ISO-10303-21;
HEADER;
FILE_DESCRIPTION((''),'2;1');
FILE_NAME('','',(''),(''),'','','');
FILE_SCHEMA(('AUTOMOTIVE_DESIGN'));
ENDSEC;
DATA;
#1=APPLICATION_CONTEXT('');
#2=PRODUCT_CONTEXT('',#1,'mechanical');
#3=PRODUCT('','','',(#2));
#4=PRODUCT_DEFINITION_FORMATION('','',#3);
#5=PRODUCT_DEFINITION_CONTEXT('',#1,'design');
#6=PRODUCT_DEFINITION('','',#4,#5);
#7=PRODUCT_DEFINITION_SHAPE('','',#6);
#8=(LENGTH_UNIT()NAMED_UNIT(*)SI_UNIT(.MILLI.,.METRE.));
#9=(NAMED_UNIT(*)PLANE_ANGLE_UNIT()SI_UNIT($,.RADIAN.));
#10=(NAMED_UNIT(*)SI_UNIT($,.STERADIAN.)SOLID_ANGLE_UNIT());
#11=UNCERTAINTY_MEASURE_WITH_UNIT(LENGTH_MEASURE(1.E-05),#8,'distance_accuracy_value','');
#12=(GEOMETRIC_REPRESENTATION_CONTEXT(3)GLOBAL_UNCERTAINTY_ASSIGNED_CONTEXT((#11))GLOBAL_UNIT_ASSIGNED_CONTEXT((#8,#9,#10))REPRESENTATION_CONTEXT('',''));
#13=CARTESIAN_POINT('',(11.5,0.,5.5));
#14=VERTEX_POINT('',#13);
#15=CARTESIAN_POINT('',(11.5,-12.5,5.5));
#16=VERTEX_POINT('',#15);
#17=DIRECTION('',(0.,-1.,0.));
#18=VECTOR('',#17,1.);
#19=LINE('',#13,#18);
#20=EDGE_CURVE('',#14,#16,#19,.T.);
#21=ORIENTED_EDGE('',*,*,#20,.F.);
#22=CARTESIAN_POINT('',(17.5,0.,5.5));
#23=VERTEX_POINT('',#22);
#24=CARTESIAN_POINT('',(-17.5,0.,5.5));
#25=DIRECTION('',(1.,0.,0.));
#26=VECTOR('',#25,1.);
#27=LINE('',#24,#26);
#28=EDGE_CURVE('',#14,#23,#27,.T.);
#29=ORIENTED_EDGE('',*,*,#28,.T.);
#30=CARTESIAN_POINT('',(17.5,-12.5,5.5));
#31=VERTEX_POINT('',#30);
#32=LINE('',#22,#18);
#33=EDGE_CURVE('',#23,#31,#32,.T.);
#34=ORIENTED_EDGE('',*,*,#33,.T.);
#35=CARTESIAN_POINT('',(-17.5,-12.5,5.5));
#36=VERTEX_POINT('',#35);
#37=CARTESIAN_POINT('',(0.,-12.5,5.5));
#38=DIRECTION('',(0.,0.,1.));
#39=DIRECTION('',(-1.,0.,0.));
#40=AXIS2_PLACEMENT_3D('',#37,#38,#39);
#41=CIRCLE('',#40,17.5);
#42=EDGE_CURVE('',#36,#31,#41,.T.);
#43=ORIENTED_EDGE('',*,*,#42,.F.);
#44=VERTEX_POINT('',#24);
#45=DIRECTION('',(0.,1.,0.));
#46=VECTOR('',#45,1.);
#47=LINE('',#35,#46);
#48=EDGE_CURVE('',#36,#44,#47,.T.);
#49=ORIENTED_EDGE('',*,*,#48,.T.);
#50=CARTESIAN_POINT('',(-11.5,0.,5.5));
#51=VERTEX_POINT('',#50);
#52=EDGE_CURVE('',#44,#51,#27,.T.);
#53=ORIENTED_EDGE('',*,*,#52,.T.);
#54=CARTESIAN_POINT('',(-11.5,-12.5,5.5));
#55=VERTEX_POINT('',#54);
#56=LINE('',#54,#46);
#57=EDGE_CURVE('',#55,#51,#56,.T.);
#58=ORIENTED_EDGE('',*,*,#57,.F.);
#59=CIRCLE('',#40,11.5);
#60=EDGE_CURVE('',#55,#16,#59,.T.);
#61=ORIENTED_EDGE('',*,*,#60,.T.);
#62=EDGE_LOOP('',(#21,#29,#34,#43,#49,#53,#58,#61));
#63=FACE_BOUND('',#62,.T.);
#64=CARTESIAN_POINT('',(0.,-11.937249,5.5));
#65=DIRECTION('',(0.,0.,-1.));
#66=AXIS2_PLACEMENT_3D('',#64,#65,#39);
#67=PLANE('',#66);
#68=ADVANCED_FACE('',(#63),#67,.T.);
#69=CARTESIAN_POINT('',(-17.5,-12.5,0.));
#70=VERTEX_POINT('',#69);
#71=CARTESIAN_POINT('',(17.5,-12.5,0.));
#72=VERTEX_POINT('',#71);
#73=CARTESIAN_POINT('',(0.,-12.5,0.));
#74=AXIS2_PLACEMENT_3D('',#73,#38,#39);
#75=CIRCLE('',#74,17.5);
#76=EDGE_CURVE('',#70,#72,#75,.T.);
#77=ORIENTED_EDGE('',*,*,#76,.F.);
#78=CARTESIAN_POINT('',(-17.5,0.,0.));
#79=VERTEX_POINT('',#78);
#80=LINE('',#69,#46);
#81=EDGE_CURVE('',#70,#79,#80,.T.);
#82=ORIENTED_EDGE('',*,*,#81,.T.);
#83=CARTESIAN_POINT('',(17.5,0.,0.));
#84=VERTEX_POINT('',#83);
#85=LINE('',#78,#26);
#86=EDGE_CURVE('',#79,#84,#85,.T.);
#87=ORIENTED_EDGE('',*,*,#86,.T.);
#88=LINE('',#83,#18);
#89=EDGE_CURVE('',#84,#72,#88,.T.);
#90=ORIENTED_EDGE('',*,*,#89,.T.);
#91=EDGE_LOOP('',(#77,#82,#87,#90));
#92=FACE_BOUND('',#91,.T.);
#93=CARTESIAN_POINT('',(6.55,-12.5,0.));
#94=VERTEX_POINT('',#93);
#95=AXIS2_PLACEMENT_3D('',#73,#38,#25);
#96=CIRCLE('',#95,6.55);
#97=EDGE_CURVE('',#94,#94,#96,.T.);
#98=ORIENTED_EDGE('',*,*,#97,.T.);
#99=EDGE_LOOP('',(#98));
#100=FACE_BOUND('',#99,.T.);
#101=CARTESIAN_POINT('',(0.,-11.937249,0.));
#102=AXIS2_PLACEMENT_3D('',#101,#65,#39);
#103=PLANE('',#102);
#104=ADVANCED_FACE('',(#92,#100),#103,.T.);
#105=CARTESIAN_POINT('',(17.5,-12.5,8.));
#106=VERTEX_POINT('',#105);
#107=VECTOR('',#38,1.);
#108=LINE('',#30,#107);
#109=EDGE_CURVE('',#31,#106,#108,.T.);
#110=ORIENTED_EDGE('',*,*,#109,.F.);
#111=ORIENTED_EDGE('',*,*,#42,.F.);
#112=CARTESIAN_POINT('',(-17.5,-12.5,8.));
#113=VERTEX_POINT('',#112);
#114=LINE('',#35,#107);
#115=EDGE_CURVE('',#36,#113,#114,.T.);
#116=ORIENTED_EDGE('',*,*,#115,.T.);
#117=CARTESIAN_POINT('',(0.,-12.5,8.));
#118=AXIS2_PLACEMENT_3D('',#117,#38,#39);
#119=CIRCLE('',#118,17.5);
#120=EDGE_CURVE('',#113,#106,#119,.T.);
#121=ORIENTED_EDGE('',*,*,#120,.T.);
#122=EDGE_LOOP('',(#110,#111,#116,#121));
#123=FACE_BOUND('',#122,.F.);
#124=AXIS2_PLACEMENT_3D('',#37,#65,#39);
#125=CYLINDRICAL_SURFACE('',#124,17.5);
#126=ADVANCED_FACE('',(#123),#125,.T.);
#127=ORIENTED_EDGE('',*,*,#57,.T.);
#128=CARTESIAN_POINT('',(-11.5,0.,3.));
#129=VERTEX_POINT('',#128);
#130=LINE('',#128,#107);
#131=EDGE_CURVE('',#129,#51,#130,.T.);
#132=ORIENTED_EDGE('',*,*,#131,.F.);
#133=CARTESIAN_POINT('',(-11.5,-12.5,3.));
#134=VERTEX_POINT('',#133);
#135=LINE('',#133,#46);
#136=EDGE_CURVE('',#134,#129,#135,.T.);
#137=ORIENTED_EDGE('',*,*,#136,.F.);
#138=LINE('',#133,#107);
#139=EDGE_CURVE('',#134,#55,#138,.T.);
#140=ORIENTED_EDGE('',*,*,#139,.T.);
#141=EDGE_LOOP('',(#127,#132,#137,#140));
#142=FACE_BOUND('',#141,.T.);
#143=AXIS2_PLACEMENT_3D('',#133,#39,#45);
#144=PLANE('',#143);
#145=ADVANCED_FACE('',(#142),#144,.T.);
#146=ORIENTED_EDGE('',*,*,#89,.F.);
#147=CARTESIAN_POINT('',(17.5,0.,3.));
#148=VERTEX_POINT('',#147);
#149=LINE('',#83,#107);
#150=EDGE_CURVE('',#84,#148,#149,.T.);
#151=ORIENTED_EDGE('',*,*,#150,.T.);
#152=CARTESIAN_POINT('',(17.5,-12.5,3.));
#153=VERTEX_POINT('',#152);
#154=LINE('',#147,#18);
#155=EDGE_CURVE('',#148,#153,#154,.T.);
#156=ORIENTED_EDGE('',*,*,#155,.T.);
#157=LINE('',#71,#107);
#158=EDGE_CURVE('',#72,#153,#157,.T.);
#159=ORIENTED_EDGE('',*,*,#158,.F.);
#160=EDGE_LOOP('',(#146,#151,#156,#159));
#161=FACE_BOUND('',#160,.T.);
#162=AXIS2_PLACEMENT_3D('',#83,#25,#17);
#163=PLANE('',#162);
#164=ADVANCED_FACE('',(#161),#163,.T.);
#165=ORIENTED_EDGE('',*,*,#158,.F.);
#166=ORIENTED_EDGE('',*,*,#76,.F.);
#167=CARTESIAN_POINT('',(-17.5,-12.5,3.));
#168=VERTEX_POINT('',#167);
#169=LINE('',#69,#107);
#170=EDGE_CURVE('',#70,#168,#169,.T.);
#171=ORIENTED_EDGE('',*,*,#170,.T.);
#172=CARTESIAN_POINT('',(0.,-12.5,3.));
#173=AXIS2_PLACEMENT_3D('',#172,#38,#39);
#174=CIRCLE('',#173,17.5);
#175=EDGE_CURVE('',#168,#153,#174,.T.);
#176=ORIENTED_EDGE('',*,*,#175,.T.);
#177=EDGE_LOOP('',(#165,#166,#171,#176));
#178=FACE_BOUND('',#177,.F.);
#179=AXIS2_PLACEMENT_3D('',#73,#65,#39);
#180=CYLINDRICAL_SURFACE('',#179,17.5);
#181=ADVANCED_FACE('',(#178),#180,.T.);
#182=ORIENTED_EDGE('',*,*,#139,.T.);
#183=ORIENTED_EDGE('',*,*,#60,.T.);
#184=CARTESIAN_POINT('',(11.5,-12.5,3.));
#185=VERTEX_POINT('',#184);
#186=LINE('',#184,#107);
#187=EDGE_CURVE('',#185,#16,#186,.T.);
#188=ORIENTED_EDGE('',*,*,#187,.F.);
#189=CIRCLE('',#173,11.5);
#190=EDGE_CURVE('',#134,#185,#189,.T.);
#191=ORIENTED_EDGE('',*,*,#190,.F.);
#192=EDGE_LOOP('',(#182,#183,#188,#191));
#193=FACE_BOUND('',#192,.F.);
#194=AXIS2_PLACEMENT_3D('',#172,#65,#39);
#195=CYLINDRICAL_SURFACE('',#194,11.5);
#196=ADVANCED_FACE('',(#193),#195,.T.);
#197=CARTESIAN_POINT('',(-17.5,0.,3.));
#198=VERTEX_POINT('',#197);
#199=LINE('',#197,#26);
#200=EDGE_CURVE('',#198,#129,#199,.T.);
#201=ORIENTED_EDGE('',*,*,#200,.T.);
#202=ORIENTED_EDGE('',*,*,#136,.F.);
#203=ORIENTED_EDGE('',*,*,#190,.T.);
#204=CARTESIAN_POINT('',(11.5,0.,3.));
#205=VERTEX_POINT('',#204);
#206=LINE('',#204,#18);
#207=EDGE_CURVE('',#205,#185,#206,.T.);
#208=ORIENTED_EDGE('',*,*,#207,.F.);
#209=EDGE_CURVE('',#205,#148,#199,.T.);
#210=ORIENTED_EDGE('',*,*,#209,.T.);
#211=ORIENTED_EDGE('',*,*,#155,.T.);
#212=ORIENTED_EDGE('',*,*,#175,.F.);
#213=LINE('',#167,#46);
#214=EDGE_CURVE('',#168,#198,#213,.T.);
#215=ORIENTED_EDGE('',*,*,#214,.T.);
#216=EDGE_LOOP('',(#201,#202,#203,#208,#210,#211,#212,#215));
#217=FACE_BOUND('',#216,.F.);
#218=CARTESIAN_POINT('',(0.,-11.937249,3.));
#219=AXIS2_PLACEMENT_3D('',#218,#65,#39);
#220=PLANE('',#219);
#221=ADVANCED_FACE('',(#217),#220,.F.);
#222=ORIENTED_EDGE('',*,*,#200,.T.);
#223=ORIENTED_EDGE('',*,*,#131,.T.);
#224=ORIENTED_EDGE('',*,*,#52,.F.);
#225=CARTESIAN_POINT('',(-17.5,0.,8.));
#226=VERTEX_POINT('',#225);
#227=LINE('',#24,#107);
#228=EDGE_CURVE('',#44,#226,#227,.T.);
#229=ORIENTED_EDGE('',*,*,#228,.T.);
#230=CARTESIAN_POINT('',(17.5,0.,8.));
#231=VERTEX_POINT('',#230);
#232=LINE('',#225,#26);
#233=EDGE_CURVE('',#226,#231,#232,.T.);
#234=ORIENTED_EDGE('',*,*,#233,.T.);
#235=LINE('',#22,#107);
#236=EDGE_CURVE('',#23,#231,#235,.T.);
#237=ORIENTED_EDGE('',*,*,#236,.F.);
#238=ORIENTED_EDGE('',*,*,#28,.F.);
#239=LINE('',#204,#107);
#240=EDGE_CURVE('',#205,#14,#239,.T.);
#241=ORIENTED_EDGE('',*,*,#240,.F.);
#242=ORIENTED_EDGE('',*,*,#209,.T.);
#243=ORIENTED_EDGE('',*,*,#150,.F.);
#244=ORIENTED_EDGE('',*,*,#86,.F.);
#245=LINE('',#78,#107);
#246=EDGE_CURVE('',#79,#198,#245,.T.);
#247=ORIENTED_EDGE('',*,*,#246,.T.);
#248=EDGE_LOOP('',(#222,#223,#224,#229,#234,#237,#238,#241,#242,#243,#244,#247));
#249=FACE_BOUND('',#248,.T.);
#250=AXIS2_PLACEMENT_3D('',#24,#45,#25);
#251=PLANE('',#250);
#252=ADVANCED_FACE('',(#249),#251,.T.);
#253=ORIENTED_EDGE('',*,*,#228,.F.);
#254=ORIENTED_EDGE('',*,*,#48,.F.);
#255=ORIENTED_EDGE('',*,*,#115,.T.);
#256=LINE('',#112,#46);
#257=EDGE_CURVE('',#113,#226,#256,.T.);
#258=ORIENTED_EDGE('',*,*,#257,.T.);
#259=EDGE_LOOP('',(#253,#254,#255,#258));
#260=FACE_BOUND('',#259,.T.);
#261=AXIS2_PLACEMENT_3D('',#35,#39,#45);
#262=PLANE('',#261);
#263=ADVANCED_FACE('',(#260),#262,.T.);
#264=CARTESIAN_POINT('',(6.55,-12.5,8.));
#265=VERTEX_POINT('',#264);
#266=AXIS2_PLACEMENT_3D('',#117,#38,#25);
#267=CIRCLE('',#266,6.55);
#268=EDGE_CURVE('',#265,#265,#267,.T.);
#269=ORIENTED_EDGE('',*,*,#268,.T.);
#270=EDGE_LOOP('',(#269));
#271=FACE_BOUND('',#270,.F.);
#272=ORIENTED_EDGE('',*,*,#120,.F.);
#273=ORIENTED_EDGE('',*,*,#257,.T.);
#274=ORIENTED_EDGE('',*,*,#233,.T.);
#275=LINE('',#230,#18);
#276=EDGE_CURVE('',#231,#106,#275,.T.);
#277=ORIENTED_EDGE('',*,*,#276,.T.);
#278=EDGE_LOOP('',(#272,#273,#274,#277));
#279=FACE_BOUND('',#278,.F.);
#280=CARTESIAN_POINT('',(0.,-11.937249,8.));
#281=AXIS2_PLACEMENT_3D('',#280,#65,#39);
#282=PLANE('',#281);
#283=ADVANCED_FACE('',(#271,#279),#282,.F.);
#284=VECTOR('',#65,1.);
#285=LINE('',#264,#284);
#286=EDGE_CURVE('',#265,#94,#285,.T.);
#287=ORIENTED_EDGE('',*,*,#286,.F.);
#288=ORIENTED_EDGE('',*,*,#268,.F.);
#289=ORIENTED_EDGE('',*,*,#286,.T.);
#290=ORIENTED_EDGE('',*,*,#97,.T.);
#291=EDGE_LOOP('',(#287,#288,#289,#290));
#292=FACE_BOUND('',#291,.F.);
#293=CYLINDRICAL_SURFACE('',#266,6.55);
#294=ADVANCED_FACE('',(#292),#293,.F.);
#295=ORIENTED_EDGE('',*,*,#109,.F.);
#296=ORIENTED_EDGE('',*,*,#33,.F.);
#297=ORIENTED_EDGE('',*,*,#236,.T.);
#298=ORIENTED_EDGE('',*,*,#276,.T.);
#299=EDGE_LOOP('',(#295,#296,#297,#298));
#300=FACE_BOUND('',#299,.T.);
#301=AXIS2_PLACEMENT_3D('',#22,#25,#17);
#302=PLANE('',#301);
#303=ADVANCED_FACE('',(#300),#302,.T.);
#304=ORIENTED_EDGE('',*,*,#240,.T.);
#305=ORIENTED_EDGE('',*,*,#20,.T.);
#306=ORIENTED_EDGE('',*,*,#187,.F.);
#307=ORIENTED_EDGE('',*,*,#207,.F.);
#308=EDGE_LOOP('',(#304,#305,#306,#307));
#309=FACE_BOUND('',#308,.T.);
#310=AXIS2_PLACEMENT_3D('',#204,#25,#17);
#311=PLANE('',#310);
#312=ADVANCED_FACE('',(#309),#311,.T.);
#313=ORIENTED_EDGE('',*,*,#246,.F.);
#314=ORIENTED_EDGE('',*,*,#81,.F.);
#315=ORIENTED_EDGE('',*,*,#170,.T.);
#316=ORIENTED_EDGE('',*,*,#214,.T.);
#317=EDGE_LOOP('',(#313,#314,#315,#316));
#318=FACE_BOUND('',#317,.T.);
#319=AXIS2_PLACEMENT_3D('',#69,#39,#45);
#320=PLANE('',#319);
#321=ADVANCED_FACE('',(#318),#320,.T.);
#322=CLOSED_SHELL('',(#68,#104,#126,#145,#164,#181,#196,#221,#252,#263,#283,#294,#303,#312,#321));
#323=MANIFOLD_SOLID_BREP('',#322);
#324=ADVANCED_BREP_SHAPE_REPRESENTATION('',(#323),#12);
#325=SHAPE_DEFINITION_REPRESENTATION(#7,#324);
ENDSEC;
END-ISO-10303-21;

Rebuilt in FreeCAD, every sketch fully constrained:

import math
import FreeCAD as App
import Part
import Sketcher
Q = App.Units.Quantity

doc = App.newDocument("Part")
params = doc.addObject("Spreadsheet::Sheet", "Params")
for row, (alias, value) in enumerate([
    ("sketch1_radius", "17.5 mm"),
    ("sketch1_height", "12.5 mm"),
    ("pad1_length", "3 mm"),
    ("sketch2_radius", "11.5 mm"),
    ("sketch2_height", "12.5 mm"),
    ("pad2_length", "2.5 mm"),
    ("sketch3_radius", "17.5 mm"),
    ("sketch3_height", "12.5 mm"),
    ("pad3_length", "2.5 mm"),
    ("sketch4_diameter", "13.1 mm"),
], start=1):
    params.set(f"A{row}", alias)
    params.set(f"B{row}", "=" + value)
    params.setAlias(f"B{row}", alias)

body = doc.addObject("PartDesign::Body", "Body")

# Sketch on XY plane
sketch1 = body.newObject("Sketcher::SketchObject", "Sketch")
sketch1.AttachmentSupport = (doc.getObject("XY_Plane"), [""])
sketch1.MapMode = "FlatFace"
sketch1.addGeometry([
    Part.LineSegment(App.Vector(18, 0, 0), App.Vector(-18, 0, 0)),
    Part.LineSegment(App.Vector(-18, 0, 0), App.Vector(-18, -12, 0)),
    Part.ArcOfCircle(Part.Circle(App.Vector(0, -12, 0), App.Vector(0, 0, 1), 18), math.radians(180), math.radians(360)),
    Part.LineSegment(App.Vector(18, -12, 0), App.Vector(18, 0, 0)),
], False)
sketch1.addConstraint([
    Sketcher.Constraint("Coincident", 0, 2, 1, 1),
    Sketcher.Constraint("Tangent", 1, 2, 2, 1),
    Sketcher.Constraint("Tangent", 2, 2, 3, 1),
    Sketcher.Constraint("Coincident", 3, 2, 0, 1),
    Sketcher.Constraint("Horizontal", 0),
    Sketcher.Constraint("Vertical", 1),
    Sketcher.Constraint("Vertical", 3),
    Sketcher.Constraint("Symmetric", 0, 2, 3, 2, -1, 1),
    Sketcher.Constraint("Radius", 2, Q("17.5 mm")),
    Sketcher.Constraint("DistanceY", 1, 2, 1, 1, Q("12.5 mm")),
])
sketch1.setExpression("Constraints[8]", "Params.sketch1_radius")
sketch1.setExpression("Constraints[9]", "Params.sketch1_height")
pad1 = body.newObject("PartDesign::Pad", "Pad")
pad1.Profile = sketch1
pad1.setExpression("Length", "Params.pad1_length")

# Sketch on XY plane
sketch2 = body.newObject("Sketcher::SketchObject", "Sketch001")
sketch2.AttachmentSupport = (doc.getObject("XY_Plane"), [""])
sketch2.MapMode = "FlatFace"
sketch2.AttachmentOffset = App.Placement(App.Vector(0, 0, 3), App.Rotation())
sketch2.addGeometry([
    Part.LineSegment(App.Vector(12, -12, 0), App.Vector(12, 0, 0)),
    Part.LineSegment(App.Vector(12, 0, 0), App.Vector(-12, 0, 0)),
    Part.LineSegment(App.Vector(-12, 0, 0), App.Vector(-12, -12, 0)),
    Part.ArcOfCircle(Part.Circle(App.Vector(0, -12, 0), App.Vector(0, 0, 1), 12), math.radians(180), math.radians(360)),
], False)
sketch2.addConstraint([
    Sketcher.Constraint("Coincident", 0, 2, 1, 1),
    Sketcher.Constraint("Coincident", 1, 2, 2, 1),
    Sketcher.Constraint("Tangent", 2, 2, 3, 1),
    Sketcher.Constraint("Tangent", 3, 2, 0, 1),
    Sketcher.Constraint("Vertical", 0),
    Sketcher.Constraint("Horizontal", 1),
    Sketcher.Constraint("Vertical", 2),
    Sketcher.Constraint("Symmetric", 0, 2, 1, 2, -1, 1),
    Sketcher.Constraint("Radius", 3, Q("11.5 mm")),
    Sketcher.Constraint("DistanceY", 0, 1, 0, 2, Q("12.5 mm")),
])
sketch2.setExpression("Constraints[8]", "Params.sketch2_radius")
sketch2.setExpression("Constraints[9]", "Params.sketch2_height")
pad2 = body.newObject("PartDesign::Pad", "Pad001")
pad2.Profile = sketch2
pad2.setExpression("Length", "Params.pad2_length")

# Sketch on XY plane
sketch3 = body.newObject("Sketcher::SketchObject", "Sketch002")
sketch3.AttachmentSupport = (doc.getObject("XY_Plane"), [""])
sketch3.MapMode = "FlatFace"
sketch3.AttachmentOffset = App.Placement(App.Vector(0, 0, 5.5), App.Rotation())
sketch3.addGeometry([
    Part.LineSegment(App.Vector(18, 0, 0), App.Vector(-18, 0, 0)),
    Part.LineSegment(App.Vector(-18, 0, 0), App.Vector(-18, -12, 0)),
    Part.ArcOfCircle(Part.Circle(App.Vector(0, -12, 0), App.Vector(0, 0, 1), 18), math.radians(180), math.radians(360)),
    Part.LineSegment(App.Vector(18, -12, 0), App.Vector(18, 0, 0)),
], False)
sketch3.addConstraint([
    Sketcher.Constraint("Coincident", 0, 2, 1, 1),
    Sketcher.Constraint("Tangent", 1, 2, 2, 1),
    Sketcher.Constraint("Tangent", 2, 2, 3, 1),
    Sketcher.Constraint("Coincident", 3, 2, 0, 1),
    Sketcher.Constraint("Horizontal", 0),
    Sketcher.Constraint("Vertical", 1),
    Sketcher.Constraint("Vertical", 3),
    Sketcher.Constraint("Symmetric", 0, 2, 3, 2, -1, 1),
    Sketcher.Constraint("Radius", 2, Q("17.5 mm")),
    Sketcher.Constraint("DistanceY", 1, 2, 1, 1, Q("12.5 mm")),
])
sketch3.setExpression("Constraints[8]", "Params.sketch3_radius")
sketch3.setExpression("Constraints[9]", "Params.sketch3_height")
pad3 = body.newObject("PartDesign::Pad", "Pad002")
pad3.Profile = sketch3
pad3.setExpression("Length", "Params.pad3_length")

# Sketch on XY plane
sketch4 = body.newObject("Sketcher::SketchObject", "Sketch003")
sketch4.AttachmentSupport = (doc.getObject("XY_Plane"), [""])
sketch4.MapMode = "FlatFace"
sketch4.AttachmentOffset = App.Placement(App.Vector(0, 0, 8), App.Rotation())
sketch4.addGeometry(Part.Circle(App.Vector(0, -12, 0), App.Vector(0, 0, 1), 7), False)
sketch4.addConstraint([
    Sketcher.Constraint("PointOnObject", 0, 3, -2),
    Sketcher.Constraint("Diameter", 0, Q("13.1 mm")),
    Sketcher.Constraint("DistanceY", 0, 3, -1, 1, Q("12.5 mm")),
])
sketch4.setExpression("Constraints[1]", "Params.sketch4_diameter")
pocket1 = body.newObject("PartDesign::Pocket", "Pocket")
pocket1.Profile = sketch4
pocket1.Type = "ThroughAll"

doc.recompute()
